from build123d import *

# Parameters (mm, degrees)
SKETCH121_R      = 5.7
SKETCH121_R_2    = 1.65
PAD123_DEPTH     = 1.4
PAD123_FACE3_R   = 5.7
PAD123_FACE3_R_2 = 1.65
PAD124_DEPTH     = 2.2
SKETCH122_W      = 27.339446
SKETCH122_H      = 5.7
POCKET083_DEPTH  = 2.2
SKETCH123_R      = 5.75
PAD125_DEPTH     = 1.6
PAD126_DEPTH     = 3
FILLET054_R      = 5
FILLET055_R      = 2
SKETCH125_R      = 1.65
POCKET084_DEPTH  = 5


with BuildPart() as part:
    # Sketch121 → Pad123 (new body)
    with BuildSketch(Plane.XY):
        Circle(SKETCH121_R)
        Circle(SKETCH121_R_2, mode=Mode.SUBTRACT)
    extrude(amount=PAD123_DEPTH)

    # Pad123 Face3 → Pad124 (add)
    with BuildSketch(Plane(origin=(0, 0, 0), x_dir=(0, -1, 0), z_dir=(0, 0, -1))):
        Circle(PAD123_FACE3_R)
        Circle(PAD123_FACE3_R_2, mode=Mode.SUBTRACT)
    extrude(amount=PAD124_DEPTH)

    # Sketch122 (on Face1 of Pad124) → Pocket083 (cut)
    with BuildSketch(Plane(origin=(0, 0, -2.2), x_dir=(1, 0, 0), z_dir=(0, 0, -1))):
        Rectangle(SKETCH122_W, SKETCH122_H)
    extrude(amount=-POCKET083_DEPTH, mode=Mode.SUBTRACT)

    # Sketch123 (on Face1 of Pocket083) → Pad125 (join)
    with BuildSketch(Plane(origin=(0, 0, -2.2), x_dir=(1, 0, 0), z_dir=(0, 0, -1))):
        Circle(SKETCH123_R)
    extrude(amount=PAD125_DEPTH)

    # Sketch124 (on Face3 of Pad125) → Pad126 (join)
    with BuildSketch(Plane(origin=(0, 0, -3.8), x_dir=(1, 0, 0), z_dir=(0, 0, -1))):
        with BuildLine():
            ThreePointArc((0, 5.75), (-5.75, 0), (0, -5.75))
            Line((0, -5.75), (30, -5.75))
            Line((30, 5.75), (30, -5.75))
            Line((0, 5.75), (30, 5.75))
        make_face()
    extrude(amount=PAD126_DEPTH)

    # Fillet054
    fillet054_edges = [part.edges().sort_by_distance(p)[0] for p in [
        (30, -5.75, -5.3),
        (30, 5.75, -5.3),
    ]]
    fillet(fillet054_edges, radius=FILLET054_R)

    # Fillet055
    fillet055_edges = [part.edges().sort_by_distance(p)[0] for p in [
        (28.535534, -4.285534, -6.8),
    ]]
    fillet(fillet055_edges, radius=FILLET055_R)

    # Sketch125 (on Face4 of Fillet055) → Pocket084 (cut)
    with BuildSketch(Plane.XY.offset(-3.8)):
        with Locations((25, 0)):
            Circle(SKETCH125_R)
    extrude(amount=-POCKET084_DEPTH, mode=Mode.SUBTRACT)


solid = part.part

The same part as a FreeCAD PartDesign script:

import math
import FreeCAD as App
import Part
import Sketcher

V = App.Vector
Q = App.Units.Quantity


def edges_at(feature, points):
    """Names of the edges that pass closest to the given points."""
    edges = feature.Shape.Edges
    near = lambda p: min(range(len(edges)), key=lambda i: edges[i].distToShape(Part.Vertex(*p))[0])
    return sorted({f"Edge{near(p) + 1}" for p in points})

doc = App.newDocument("Part")
body = doc.addObject("PartDesign::Body", "Body")

sketch1 = doc.addObject("Sketcher::SketchObject", "Sketch")
body.addObject(sketch1)
sketch1.AttachmentSupport = (doc.XY_Plane, [""])
sketch1.MapMode = "FlatFace"
sketch1.addGeometry(Part.Circle(V(0, 0, 0), V(0, 0, 1), 5.7), False)
sketch1.addGeometry(Part.Circle(V(0, 0, 0), V(0, 0, 1), 1.65), False)
sketch1.addConstraint(Sketcher.Constraint("Coincident", 0, 3, -1, 1))
sketch1.addConstraint(Sketcher.Constraint("Coincident", 1, 3, -1, 1))
sketch1.addConstraint(Sketcher.Constraint("Diameter", 0, Q("11.4 mm")))
sketch1.addConstraint(Sketcher.Constraint("Diameter", 1, Q("3.3 mm")))
pad1 = doc.addObject("PartDesign::Pad", "Pad")
body.addObject(pad1)
pad1.Profile = sketch1
pad1.Length = 1.4

sketch2 = doc.addObject("Sketcher::SketchObject", "Sketch001")
body.addObject(sketch2)
sketch2.AttachmentSupport = (doc.XY_Plane, [""])
sketch2.MapMode = "FlatFace"
sketch2.addGeometry(Part.Circle(V(0, 0, 0), V(0, 0, 1), 5.7), False)
sketch2.addGeometry(Part.Circle(V(0, 0, 0), V(0, 0, 1), 1.65), False)
sketch2.addConstraint(Sketcher.Constraint("Coincident", 0, 3, -1, 1))
sketch2.addConstraint(Sketcher.Constraint("Coincident", 1, 3, -1, 1))
sketch2.addConstraint(Sketcher.Constraint("Diameter", 0, Q("11.4 mm")))
sketch2.addConstraint(Sketcher.Constraint("Diameter", 1, Q("3.3 mm")))
pad2 = doc.addObject("PartDesign::Pad", "Pad001")
body.addObject(pad2)
pad2.Profile = sketch2
pad2.Length = 2.2
pad2.Reversed = True

sketch3 = doc.addObject("Sketcher::SketchObject", "Sketch002")
body.addObject(sketch3)
sketch3.AttachmentSupport = (doc.XY_Plane, [""])
sketch3.MapMode = "FlatFace"
sketch3.AttachmentOffset = App.Placement(V(0, 0, -2.2), App.Rotation())
sketch3.addGeometry(Part.LineSegment(V(-13.669723, -2.85, 0), V(-13.669723, 2.85, 0)), False)
sketch3.addGeometry(Part.LineSegment(V(-13.669723, 2.85, 0), V(13.669723, 2.85, 0)), False)
sketch3.addGeometry(Part.LineSegment(V(13.669723, 2.85, 0), V(13.669723, -2.85, 0)), False)
sketch3.addGeometry(Part.LineSegment(V(13.669723, -2.85, 0), V(-13.669723, -2.85, 0)), False)
sketch3.addConstraint(Sketcher.Constraint("Coincident", 0, 2, 1, 1))
sketch3.addConstraint(Sketcher.Constraint("Coincident", 1, 2, 2, 1))
sketch3.addConstraint(Sketcher.Constraint("Coincident", 2, 2, 3, 1))
sketch3.addConstraint(Sketcher.Constraint("Coincident", 3, 2, 0, 1))
sketch3.addConstraint(Sketcher.Constraint("Vertical", 0))
sketch3.addConstraint(Sketcher.Constraint("Horizontal", 1))
sketch3.addConstraint(Sketcher.Constraint("Vertical", 2))
sketch3.addConstraint(Sketcher.Constraint("Horizontal", 3))
sketch3.addConstraint(Sketcher.Constraint("Symmetric", 0, 2, 2, 2, -1, 1))
sketch3.addConstraint(Sketcher.Constraint("DistanceY", 0, 1, 0, 2, Q("5.7 mm")))
sketch3.addConstraint(Sketcher.Constraint("DistanceX", 1, 1, 1, 2, Q("27.339446 mm")))
pocket1 = doc.addObject("PartDesign::Pocket", "Pocket")
body.addObject(pocket1)
pocket1.Profile = sketch3
pocket1.Length = 2.2
pocket1.Reversed = True

sketch4 = doc.addObject("Sketcher::SketchObject", "Sketch003")
body.addObject(sketch4)
sketch4.AttachmentSupport = (doc.XY_Plane, [""])
sketch4.MapMode = "FlatFace"
sketch4.AttachmentOffset = App.Placement(V(0, 0, -2.2), App.Rotation())
sketch4.addGeometry(Part.Circle(V(0, 0, 0), V(0, 0, 1), 5.75), False)
sketch4.addConstraint(Sketcher.Constraint("Coincident", 0, 3, -1, 1))
sketch4.addConstraint(Sketcher.Constraint("Diameter", 0, Q("11.5 mm")))
pad3 = doc.addObject("PartDesign::Pad", "Pad002")
body.addObject(pad3)
pad3.Profile = sketch4
pad3.Length = 1.6
pad3.Reversed = True

sketch5 = doc.addObject("Sketcher::SketchObject", "Sketch004")
body.addObject(sketch5)
sketch5.AttachmentSupport = (doc.XY_Plane, [""])
sketch5.MapMode = "FlatFace"
sketch5.AttachmentOffset = App.Placement(V(0, 0, -3.8), App.Rotation())
sketch5.addGeometry(Part.ArcOfCircle(Part.Circle(V(0, 0, 0), V(0, 0, 1), 5.75), math.radians(90), math.radians(270)), False)
sketch5.addGeometry(Part.LineSegment(V(0, 5.75, 0), V(30, 5.75, 0)), False)
sketch5.addGeometry(Part.LineSegment(V(30, 5.75, 0), V(30, -5.75, 0)), False)
sketch5.addGeometry(Part.LineSegment(V(30, -5.75, 0), V(0, -5.75, 0)), False)
sketch5.addConstraint(Sketcher.Constraint("Tangent", 0, 1, 1, 1))
sketch5.addConstraint(Sketcher.Constraint("Coincident", 1, 2, 2, 1))
sketch5.addConstraint(Sketcher.Constraint("Coincident", 2, 2, 3, 1))
sketch5.addConstraint(Sketcher.Constraint("Tangent", 3, 2, 0, 2))
sketch5.addConstraint(Sketcher.Constraint("Horizontal", 1))
sketch5.addConstraint(Sketcher.Constraint("Vertical", 2))
sketch5.addConstraint(Sketcher.Constraint("Horizontal", 3))
sketch5.addConstraint(Sketcher.Constraint("Coincident", 0, 3, -1, 1))
sketch5.addConstraint(Sketcher.Constraint("DistanceX", 1, 1, 1, 2, Q("30 mm")))
sketch5.addConstraint(Sketcher.Constraint("Radius", 0, Q("5.75 mm")))
pad4 = doc.addObject("PartDesign::Pad", "Pad003")
body.addObject(pad4)
pad4.Profile = sketch5
pad4.Length = 3
pad4.Reversed = True
doc.recompute()

fillet = doc.addObject("PartDesign::Fillet", "Fillet")
body.addObject(fillet)
fillet.Base = (pad4, edges_at(pad4, [(30, -5.75, -5.3), (30, 5.75, -5.3)]))
fillet.Radius = 5
doc.recompute()

fillet2 = doc.addObject("PartDesign::Fillet", "Fillet001")
body.addObject(fillet2)
fillet2.Base = (fillet, edges_at(fillet, [(28.536, -4.286, -6.8)]))
fillet2.Radius = 2

sketch6 = doc.addObject("Sketcher::SketchObject", "Sketch005")
body.addObject(sketch6)
sketch6.AttachmentSupport = (doc.XY_Plane, [""])
sketch6.MapMode = "FlatFace"
sketch6.AttachmentOffset = App.Placement(V(0, 0, -3.8), App.Rotation())
sketch6.addGeometry(Part.Circle(V(25, 0, 0), V(0, 0, 1), 1.65), False)
sketch6.addConstraint(Sketcher.Constraint("PointOnObject", 0, 3, -1))
sketch6.addConstraint(Sketcher.Constraint("Diameter", 0, Q("3.3 mm")))
sketch6.addConstraint(Sketcher.Constraint("DistanceX", -1, 1, 0, 3, Q("25 mm")))
pocket2 = doc.addObject("PartDesign::Pocket", "Pocket001")
body.addObject(pocket2)
pocket2.Profile = sketch6
pocket2.Length = 5

doc.recompute()
